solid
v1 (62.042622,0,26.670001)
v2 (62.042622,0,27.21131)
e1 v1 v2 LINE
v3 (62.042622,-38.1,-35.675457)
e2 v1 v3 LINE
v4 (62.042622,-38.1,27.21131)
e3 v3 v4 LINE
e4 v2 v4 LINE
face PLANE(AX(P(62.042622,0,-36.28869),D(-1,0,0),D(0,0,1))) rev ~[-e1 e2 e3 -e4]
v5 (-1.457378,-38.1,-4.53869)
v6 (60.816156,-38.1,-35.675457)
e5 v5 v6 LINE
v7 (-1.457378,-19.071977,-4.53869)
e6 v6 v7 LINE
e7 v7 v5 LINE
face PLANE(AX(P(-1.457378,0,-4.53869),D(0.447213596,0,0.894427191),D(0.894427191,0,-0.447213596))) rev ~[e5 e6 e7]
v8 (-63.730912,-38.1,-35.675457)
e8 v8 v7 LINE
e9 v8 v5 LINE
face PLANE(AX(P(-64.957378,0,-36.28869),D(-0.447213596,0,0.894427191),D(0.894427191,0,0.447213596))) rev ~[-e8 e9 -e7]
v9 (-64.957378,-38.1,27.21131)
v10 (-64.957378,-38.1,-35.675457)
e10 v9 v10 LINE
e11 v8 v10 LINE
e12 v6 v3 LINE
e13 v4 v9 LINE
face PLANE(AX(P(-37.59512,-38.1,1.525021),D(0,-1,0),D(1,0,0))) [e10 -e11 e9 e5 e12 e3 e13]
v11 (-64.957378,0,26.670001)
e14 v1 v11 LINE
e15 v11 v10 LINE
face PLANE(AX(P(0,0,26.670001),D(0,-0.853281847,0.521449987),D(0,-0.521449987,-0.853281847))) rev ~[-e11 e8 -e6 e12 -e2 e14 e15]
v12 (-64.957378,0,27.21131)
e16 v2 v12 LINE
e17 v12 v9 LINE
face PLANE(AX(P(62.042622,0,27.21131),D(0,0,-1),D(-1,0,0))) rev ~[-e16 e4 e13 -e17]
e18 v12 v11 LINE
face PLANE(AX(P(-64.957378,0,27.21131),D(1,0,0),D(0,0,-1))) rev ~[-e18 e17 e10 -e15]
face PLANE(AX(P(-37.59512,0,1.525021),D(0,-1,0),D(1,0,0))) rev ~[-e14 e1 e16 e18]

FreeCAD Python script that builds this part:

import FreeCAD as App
import Part
import Sketcher
Q = App.Units.Quantity


def add_polygon(sketch, points):
    """Adds a closed chain of lines whose ends are joined by coincident constraints."""
    first, n = sketch.GeometryCount, len(points)
    for a, b in zip(points, points[1:] + points[:1]):
        sketch.addGeometry(Part.LineSegment(App.Vector(*a, 0), App.Vector(*b, 0)), False)
    for i in range(n):
        sketch.addConstraint(Sketcher.Constraint("Coincident", first + i, 2, first + (i + 1) % n, 1))

doc = App.newDocument("Part")
body = doc.addObject("PartDesign::Body", "Body")

# Sketch on XZ plane
sketch1 = body.newObject("Sketcher::SketchObject", "Sketch")
sketch1.AttachmentSupport = (doc.getObject("XZ_Plane"), [""])
sketch1.MapMode = "FlatFace"
add_polygon(sketch1, [(-64.957378, 27.21131), (-64.957378, -36.28869), (-1.457378, -4.53869), (62.042622, -36.28869), (62.042622, 27.21131)])  # lines 0-4
sketch1.addConstraint([
    Sketcher.Constraint("Vertical", 0),
    Sketcher.Constraint("Vertical", 3),
    Sketcher.Constraint("Horizontal", 4),
    Sketcher.Constraint("Horizontal", 0, 2, 2, 2),
    Sketcher.Constraint("Equal", 1, 2),
    Sketcher.Constraint("DistanceX", 4, 2, 4, 1, Q("5 in")),
    Sketcher.Constraint("DistanceY", 0, 2, 0, 1, Q("2.5 in")),
    Sketcher.Constraint("DistanceY", 0, 2, 1, 2, Q("1.25 in")),
    Sketcher.Constraint("DistanceX", 0, 2, -1, 1, 64.957378),
    Sketcher.Constraint("DistanceY", 0, 2, -1, 1, 36.28869),
])
pad1 = body.newObject("PartDesign::Pad", "Pad")
pad1.Profile = sketch1
pad1.Length = Q("1.5 in")

# Sketch on YZ plane
sketch2 = body.newObject("Sketcher::SketchObject", "Sketch001")
sketch2.AttachmentSupport = (doc.getObject("YZ_Plane"), [""])
sketch2.MapMode = "FlatFace"
add_polygon(sketch2, [(0, 26.670001), (-38.474753, -36.28869), (0, -36.28869)])  # lines 0-2
sketch2.addConstraint([
    Sketcher.Constraint("Horizontal", 1),
    Sketcher.Constraint("Vertical", 2),
    Sketcher.Constraint("PointOnObject", 1, 2, -2),
    Sketcher.Constraint("DistanceY", -1, 1, 2, 2, Q("1.0500001 in")),
    Sketcher.Constraint("DistanceY", 2, 1, 2, 2, 62.958691),
    Sketcher.Constraint("Distance", 0, 73.784168),
])
pocket1 = body.newObject("PartDesign::Pocket", "Pocket")
pocket1.Profile = sketch2
pocket1.Type = "ThroughAll"
pocket1.Midplane = True

doc.recompute()
